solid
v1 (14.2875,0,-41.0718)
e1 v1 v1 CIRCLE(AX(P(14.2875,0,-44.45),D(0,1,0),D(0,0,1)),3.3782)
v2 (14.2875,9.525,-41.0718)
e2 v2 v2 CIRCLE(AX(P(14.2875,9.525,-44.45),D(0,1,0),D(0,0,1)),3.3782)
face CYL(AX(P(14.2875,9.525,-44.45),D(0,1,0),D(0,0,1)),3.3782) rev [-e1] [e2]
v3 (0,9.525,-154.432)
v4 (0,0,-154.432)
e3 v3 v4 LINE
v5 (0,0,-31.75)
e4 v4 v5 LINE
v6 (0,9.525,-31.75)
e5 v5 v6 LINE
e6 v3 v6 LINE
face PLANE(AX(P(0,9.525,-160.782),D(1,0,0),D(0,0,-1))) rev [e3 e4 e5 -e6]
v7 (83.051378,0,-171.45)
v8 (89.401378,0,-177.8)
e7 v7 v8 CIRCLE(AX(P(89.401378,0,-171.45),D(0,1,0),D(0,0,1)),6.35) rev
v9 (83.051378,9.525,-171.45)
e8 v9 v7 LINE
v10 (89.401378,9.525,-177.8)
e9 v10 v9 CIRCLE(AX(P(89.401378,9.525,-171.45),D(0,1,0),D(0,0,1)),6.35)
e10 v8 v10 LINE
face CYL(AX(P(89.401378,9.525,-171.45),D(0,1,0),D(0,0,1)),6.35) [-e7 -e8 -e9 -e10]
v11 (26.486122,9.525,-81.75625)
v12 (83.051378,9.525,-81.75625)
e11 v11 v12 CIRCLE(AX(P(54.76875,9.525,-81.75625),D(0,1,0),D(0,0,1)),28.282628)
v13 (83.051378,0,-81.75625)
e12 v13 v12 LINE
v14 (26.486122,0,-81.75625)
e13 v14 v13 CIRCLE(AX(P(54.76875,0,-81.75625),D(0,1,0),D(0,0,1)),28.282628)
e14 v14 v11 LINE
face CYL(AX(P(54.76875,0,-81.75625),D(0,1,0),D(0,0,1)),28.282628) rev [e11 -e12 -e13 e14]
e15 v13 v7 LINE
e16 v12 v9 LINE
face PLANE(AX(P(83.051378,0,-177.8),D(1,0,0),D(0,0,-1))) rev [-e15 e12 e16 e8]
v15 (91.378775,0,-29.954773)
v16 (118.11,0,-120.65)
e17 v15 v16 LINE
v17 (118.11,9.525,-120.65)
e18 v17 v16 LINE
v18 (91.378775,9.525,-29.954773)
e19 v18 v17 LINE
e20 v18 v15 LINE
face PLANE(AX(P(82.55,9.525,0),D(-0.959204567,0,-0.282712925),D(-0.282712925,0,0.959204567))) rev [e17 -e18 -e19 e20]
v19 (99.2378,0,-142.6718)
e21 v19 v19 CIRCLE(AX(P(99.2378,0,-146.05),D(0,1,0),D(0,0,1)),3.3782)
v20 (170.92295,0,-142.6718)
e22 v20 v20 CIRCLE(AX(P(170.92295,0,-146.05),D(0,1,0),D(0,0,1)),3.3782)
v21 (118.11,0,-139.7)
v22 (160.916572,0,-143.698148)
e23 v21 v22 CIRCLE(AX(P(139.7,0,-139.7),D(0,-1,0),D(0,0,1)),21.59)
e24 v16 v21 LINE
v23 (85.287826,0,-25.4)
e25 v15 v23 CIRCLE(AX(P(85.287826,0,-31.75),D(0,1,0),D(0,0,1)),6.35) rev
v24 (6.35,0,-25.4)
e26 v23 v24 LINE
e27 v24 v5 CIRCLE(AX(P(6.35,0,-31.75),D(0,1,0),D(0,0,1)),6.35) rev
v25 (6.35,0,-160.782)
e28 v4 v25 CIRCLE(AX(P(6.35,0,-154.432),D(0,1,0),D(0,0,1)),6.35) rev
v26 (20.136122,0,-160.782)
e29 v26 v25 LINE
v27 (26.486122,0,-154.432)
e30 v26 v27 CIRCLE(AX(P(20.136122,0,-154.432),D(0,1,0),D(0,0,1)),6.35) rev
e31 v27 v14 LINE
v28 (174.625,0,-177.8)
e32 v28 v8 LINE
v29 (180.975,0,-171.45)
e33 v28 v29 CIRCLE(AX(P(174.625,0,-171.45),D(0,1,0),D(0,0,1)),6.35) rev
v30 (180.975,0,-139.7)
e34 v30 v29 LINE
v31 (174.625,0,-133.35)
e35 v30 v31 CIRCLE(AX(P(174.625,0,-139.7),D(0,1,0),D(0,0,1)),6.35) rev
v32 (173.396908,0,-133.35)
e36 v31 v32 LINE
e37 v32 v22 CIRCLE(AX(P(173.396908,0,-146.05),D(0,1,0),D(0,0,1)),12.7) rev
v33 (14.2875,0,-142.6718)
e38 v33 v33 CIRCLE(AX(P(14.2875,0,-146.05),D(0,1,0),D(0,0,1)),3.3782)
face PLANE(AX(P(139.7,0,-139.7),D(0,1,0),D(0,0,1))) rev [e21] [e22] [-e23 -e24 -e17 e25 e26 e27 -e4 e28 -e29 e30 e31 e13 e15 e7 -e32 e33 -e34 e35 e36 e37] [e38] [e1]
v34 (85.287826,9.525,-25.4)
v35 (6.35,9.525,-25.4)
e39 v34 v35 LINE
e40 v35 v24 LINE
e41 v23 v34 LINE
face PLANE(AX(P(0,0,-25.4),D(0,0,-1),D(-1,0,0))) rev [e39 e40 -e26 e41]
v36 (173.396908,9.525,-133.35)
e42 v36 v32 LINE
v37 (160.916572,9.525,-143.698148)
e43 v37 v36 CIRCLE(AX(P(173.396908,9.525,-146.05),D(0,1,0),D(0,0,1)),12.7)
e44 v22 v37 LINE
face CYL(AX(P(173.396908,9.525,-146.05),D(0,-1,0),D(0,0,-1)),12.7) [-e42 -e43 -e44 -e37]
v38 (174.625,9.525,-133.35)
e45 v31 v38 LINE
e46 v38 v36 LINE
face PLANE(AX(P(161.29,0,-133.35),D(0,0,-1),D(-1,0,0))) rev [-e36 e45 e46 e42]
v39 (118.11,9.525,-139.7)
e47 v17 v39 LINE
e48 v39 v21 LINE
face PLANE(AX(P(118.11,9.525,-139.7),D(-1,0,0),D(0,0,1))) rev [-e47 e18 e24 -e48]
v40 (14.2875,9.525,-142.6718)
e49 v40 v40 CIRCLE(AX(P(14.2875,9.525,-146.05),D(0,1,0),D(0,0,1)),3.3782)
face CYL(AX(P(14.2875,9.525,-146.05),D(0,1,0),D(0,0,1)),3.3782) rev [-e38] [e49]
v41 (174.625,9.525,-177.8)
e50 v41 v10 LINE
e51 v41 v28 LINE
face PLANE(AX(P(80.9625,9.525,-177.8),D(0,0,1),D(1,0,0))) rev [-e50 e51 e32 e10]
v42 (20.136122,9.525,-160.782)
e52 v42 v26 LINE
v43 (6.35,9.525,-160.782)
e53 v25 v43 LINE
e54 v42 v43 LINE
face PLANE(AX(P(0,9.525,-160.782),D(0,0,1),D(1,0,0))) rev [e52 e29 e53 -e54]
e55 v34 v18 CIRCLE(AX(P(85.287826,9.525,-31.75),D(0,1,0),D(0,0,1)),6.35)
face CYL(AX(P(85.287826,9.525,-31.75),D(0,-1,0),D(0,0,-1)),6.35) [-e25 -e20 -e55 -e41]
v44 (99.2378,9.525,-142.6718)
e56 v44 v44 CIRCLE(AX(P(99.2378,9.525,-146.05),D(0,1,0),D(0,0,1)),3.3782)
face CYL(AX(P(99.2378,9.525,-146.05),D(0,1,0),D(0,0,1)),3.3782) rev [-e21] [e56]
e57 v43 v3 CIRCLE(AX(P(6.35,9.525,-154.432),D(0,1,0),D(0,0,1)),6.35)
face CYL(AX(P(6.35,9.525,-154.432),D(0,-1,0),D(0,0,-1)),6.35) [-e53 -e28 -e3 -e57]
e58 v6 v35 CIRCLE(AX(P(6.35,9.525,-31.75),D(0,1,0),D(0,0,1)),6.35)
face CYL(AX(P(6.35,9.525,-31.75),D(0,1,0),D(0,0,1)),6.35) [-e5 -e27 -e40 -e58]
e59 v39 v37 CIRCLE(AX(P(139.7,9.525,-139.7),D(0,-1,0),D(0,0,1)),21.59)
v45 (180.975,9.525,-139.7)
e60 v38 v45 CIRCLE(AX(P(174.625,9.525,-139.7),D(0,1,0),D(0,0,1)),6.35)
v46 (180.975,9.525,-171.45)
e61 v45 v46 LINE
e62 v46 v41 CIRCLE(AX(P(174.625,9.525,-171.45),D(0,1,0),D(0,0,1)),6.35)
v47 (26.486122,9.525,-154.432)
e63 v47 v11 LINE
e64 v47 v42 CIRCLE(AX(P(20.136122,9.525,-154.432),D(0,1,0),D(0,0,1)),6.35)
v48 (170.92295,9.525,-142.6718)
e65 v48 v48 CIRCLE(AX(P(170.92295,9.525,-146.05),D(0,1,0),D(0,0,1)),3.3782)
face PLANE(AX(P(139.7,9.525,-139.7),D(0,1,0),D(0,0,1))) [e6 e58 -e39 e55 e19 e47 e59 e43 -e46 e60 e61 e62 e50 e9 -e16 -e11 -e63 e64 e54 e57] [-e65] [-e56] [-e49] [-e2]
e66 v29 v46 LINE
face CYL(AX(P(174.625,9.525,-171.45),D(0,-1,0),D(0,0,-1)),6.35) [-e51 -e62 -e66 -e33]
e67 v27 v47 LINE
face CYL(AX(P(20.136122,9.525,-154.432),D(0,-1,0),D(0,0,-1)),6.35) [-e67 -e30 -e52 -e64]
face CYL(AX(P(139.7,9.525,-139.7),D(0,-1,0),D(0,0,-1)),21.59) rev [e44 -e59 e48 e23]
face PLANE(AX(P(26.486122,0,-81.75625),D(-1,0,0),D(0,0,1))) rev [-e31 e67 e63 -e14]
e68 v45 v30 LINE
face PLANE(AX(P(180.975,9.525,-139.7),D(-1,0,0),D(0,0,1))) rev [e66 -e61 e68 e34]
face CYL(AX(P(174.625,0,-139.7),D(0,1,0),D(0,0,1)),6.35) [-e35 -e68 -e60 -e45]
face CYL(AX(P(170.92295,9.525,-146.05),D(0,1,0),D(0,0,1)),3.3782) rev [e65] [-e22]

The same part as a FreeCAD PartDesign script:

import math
import FreeCAD as App
import Part
import Sketcher

V = App.Vector
Q = App.Units.Quantity


def edges_at(feature, points):
    """Names of the edges that pass closest to the given points."""
    edges = feature.Shape.Edges
    near = lambda p: min(range(len(edges)), key=lambda i: edges[i].distToShape(Part.Vertex(*p))[0])
    return sorted({f"Edge{near(p) + 1}" for p in points})

doc = App.newDocument("Part")
body = doc.addObject("PartDesign::Body", "Body")

sketch1 = body.newObject("Sketcher::SketchObject", "Sketch")
sketch1.AttachmentSupport = (doc.getObject("XZ_Plane"), [""])
sketch1.MapMode = "FlatFace"
sketch1.addGeometry(Part.LineSegment(V(29, -82, 0), V(29, -161, 0)), False)
sketch1.addGeometry(Part.LineSegment(V(29, -161, 0), V(0, -161, 0)), False)
sketch1.addGeometry(Part.LineSegment(V(0, -161, 0), V(0, 0, 0)), False)
sketch1.addGeometry(Part.LineSegment(V(0, 0, 0), V(83, 0, 0)), False)
sketch1.addGeometry(Part.LineSegment(V(83, 0, 0), V(118, -121, 0)), False)
sketch1.addGeometry(Part.LineSegment(V(118, -121, 0), V(118, -140, 0)), False)
sketch1.addGeometry(Part.ArcOfCircle(Part.Circle(V(140, -140, 0), V(0, 0, 1), 22), math.radians(180), math.radians(360)), False)
sketch1.addGeometry(Part.LineSegment(V(161, -140, 0), V(161, -121, 0)), False)
sketch1.addGeometry(Part.LineSegment(V(161, -121, 0), V(181, -121, 0)), False)
sketch1.addGeometry(Part.LineSegment(V(181, -121, 0), V(181, -178, 0)), False)
sketch1.addGeometry(Part.LineSegment(V(181, -178, 0), V(81, -178, 0)), False)
sketch1.addGeometry(Part.LineSegment(V(81, -178, 0), V(81, -82, 0)), False)
sketch1.addGeometry(Part.ArcOfCircle(Part.Circle(V(55, -82, 0), V(0, 0, 1), 26), math.radians(0), math.radians(180)), False)
sketch1.addConstraint(Sketcher.Constraint("Coincident", 0, 2, 1, 1))
sketch1.addConstraint(Sketcher.Constraint("Coincident", 1, 2, 2, 1))
sketch1.addConstraint(Sketcher.Constraint("Coincident", 2, 2, 3, 1))
sketch1.addConstraint(Sketcher.Constraint("Coincident", 3, 2, 4, 1))
sketch1.addConstraint(Sketcher.Constraint("Coincident", 4, 2, 5, 1))
sketch1.addConstraint(Sketcher.Constraint("Tangent", 5, 2, 6, 1))
sketch1.addConstraint(Sketcher.Constraint("Tangent", 6, 2, 7, 1))
sketch1.addConstraint(Sketcher.Constraint("Coincident", 7, 2, 8, 1))
sketch1.addConstraint(Sketcher.Constraint("Coincident", 8, 2, 9, 1))
sketch1.addConstraint(Sketcher.Constraint("Coincident", 9, 2, 10, 1))
sketch1.addConstraint(Sketcher.Constraint("Coincident", 10, 2, 11, 1))
sketch1.addConstraint(Sketcher.Constraint("Tangent", 11, 2, 12, 1))
sketch1.addConstraint(Sketcher.Constraint("Tangent", 12, 2, 0, 1))
sketch1.addConstraint(Sketcher.Constraint("Vertical", 0))
sketch1.addConstraint(Sketcher.Constraint("Horizontal", 1))
sketch1.addConstraint(Sketcher.Constraint("Vertical", 2))
sketch1.addConstraint(Sketcher.Constraint("Horizontal", 3))
sketch1.addConstraint(Sketcher.Constraint("Vertical", 5))
sketch1.addConstraint(Sketcher.Constraint("Vertical", 7))
sketch1.addConstraint(Sketcher.Constraint("Horizontal", 8))
sketch1.addConstraint(Sketcher.Constraint("Vertical", 9))
sketch1.addConstraint(Sketcher.Constraint("Horizontal", 10))
sketch1.addConstraint(Sketcher.Constraint("Vertical", 11))
sketch1.addConstraint(Sketcher.Constraint("Coincident", 2, 2, -1, 1))
sketch1.addConstraint(Sketcher.Constraint("Horizontal", 4, 2, 7, 2))
sketch1.addConstraint(Sketcher.Constraint("Radius", 6, Q("0.85 in")))
sketch1.addConstraint(Sketcher.Constraint("DistanceY", 9, 2, -1, 1, Q("7 in")))
sketch1.addConstraint(Sketcher.Constraint("Radius", 12, Q("1.03125 in")))
sketch1.addConstraint(Sketcher.Constraint("DistanceX", 3, 1, 3, 2, Q("3.25 in")))
sketch1.addConstraint(Sketcher.Constraint("DistanceY", 2, 1, 2, 2, Q("6.33 in")))
sketch1.addConstraint(Sketcher.Constraint("DistanceY", 5, 2, 5, 1, Q("0.75 in")))
sketch1.addConstraint(Sketcher.Constraint("DistanceY", 9, 2, 9, 1, Q("2.25 in")))
sketch1.addConstraint(Sketcher.Constraint("DistanceX", -1, 1, 6, 3, Q("5.5 in")))
sketch1.addConstraint(Sketcher.Constraint("DistanceX", 1, 2, 1, 1, Q("1.125 in")))
sketch1.addConstraint(Sketcher.Constraint("DistanceX", 8, 1, 8, 2, Q("0.775 in")))
sketch1.addConstraint(Sketcher.Constraint("DistanceY", 11, 1, 11, 2, Q("3.78125 in")))
pad1 = body.newObject("PartDesign::Pad", "Pad")
pad1.Profile = sketch1
pad1.Length = Q("0.375 in")
pad1.Reversed = True

sketch2 = body.newObject("Sketcher::SketchObject", "Sketch001")
sketch2.AttachmentSupport = (doc.getObject("XZ_Plane"), [""])
sketch2.MapMode = "FlatFace"
sketch2.AttachmentOffset = App.Placement(V(0, 0, -0.375 * 25.4), App.Rotation())
sketch2.addGeometry(Part.LineSegment(V(0, -25, 0), V(0, 0, 0)), False)
sketch2.addGeometry(Part.LineSegment(V(0, 0, 0), V(94, 0, 0)), False)
sketch2.addGeometry(Part.LineSegment(V(94, 0, 0), V(94, -25, 0)), False)
sketch2.addGeometry(Part.LineSegment(V(94, -25, 0), V(0, -25, 0)), False)
sketch2.addConstraint(Sketcher.Constraint("Coincident", 0, 2, 1, 1))
sketch2.addConstraint(Sketcher.Constraint("Coincident", 1, 2, 2, 1))
sketch2.addConstraint(Sketcher.Constraint("Coincident", 2, 2, 3, 1))
sketch2.addConstraint(Sketcher.Constraint("Coincident", 3, 2, 0, 1))
sketch2.addConstraint(Sketcher.Constraint("Vertical", 0))
sketch2.addConstraint(Sketcher.Constraint("Horizontal", 1))
sketch2.addConstraint(Sketcher.Constraint("Vertical", 2))
sketch2.addConstraint(Sketcher.Constraint("Horizontal", 3))
sketch2.addConstraint(Sketcher.Constraint("Coincident", 0, 2, -1, 1))
sketch2.addConstraint(Sketcher.Constraint("DistanceY", 0, 1, 0, 2, Q("1 in")))
sketch2.addConstraint(Sketcher.Constraint("DistanceX", 1, 1, 1, 2, 94.331669))
pocket1 = body.newObject("PartDesign::Pocket", "Pocket")
pocket1.Profile = sketch2
pocket1.Type = "ThroughAll"
pocket1.Reversed = True
doc.recompute()

fillet = body.newObject("PartDesign::Fillet", "Fillet")
fillet.Base = (pocket1, edges_at(pocket1, [(0, 4.763, -25.4)]))
fillet.Radius = Q("0.25 in")
doc.recompute()

fillet2 = body.newObject("PartDesign::Fillet", "Fillet001")
fillet2.Base = (fillet, edges_at(fillet, [
    (0, 4.763, -160.782),
    (180.975, 4.763, -177.8),
    (180.975, 4.763, -120.65),
    (90.036, 4.763, -25.4),
]))
fillet2.Radius = Q("0.25 in")

sketch3 = body.newObject("Sketcher::SketchObject", "Sketch002")
sketch3.AttachmentSupport = (doc.getObject("XZ_Plane"), [""])
sketch3.MapMode = "FlatFace"
sketch3.AttachmentOffset = App.Placement(V(0, 0, -0.375 * 25.4), App.Rotation())
sketch3.addGeometry(Part.Circle(V(14.3, -146.1, 0), V(0, 0, 1), 3.4), False)
sketch3.addGeometry(Part.Circle(V(14.3, -44.5, 0), V(0, 0, 1), 3.4), False)
sketch3.addGeometry(Part.Circle(V(99.2, -146.1, 0), V(0, 0, 1), 3.4), False)
sketch3.addGeometry(Part.Circle(V(170.9, -146.1, 0), V(0, 0, 1), 3.4), False)
sketch3.addConstraint(Sketcher.Constraint("Equal", 0, 1))
sketch3.addConstraint(Sketcher.Constraint("Equal", 1, 2))
sketch3.addConstraint(Sketcher.Constraint("Equal", 2, 3))
sketch3.addConstraint(Sketcher.Constraint("Horizontal", 0, 3, 2, 3))
sketch3.addConstraint(Sketcher.Constraint("Horizontal", 2, 3, 3, 3))
sketch3.addConstraint(Sketcher.Constraint("Vertical", 0, 3, 1, 3))
sketch3.addConstraint(Sketcher.Constraint("Diameter", 0, Q("0.266 in")))
sketch3.addConstraint(Sketcher.Constraint("DistanceY", 0, 3, 1, 3, Q("4 in")))
sketch3.addConstraint(Sketcher.Constraint("DistanceY", 0, 3, -1, 1, Q("5.75 in")))
sketch3.addConstraint(Sketcher.Constraint("DistanceX", -1, 1, 0, 3, Q("0.5625 in")))
sketch3.addConstraint(Sketcher.Constraint("DistanceX", -1, 1, 2, 3, Q("3.907 in")))
sketch3.addConstraint(Sketcher.Constraint("DistanceX", -1, 1, 3, 3, 170.92295))
doc.recompute()
hole = body.newObject("PartDesign::Hole", "Hole")
hole.Profile = sketch3
hole.ThreadType = "None"
hole.Diameter = Q("0.266 in")
hole.DepthType = "ThroughAll"
hole.Reversed = True

sketch4 = body.newObject("Sketcher::SketchObject", "Sketch003")
sketch4.AttachmentSupport = (doc.getObject("XZ_Plane"), [""])
sketch4.MapMode = "FlatFace"
sketch4.AttachmentOffset = App.Placement(V(0, 0, -0.375 * 25.4), App.Rotation())
sketch4.addGeometry(Part.LineSegment(V(161, -133, 0), V(161, -121, 0)), False)
sketch4.addGeometry(Part.LineSegment(V(161, -121, 0), V(181, -121, 0)), False)
sketch4.addGeometry(Part.LineSegment(V(181, -121, 0), V(181, -133, 0)), False)
sketch4.addGeometry(Part.LineSegment(V(181, -133, 0), V(161, -133, 0)), False)
sketch4.addConstraint(Sketcher.Constraint("Coincident", 0, 2, 1, 1))
sketch4.addConstraint(Sketcher.Constraint("Coincident", 1, 2, 2, 1))
sketch4.addConstraint(Sketcher.Constraint("Coincident", 2, 2, 3, 1))
sketch4.addConstraint(Sketcher.Constraint("Coincident", 3, 2, 0, 1))
sketch4.addConstraint(Sketcher.Constraint("Vertical", 0))
sketch4.addConstraint(Sketcher.Constraint("Horizontal", 1))
sketch4.addConstraint(Sketcher.Constraint("Vertical", 2))
sketch4.addConstraint(Sketcher.Constraint("Horizontal", 3))
sketch4.addConstraint(Sketcher.Constraint("DistanceY", 0, 1, 0, 2, Q("0.5 in")))
sketch4.addConstraint(Sketcher.Constraint("DistanceX", 1, 1, 1, 2, Q("0.775 in")))
sketch4.addConstraint(Sketcher.Constraint("DistanceX", -1, 1, 0, 2, Q("6.35 in")))
sketch4.addConstraint(Sketcher.Constraint("DistanceY", 0, 2, -1, 1, Q("4.75 in")))
pocket2 = body.newObject("PartDesign::Pocket", "Pocket001")
pocket2.Profile = sketch4
pocket2.Type = "ThroughAll"
pocket2.Reversed = True
doc.recompute()

fillet3 = body.newObject("PartDesign::Fillet", "Fillet002")
fillet3.Base = (pocket2, edges_at(pocket2, [(180.975, 4.763, -133.35)]))
fillet3.Radius = Q("0.25 in")

sketch5 = body.newObject("Sketcher::SketchObject", "Sketch004")
sketch5.AttachmentSupport = (doc.getObject("XZ_Plane"), [""])
sketch5.MapMode = "FlatFace"
sketch5.AttachmentOffset = App.Placement(V(0, 0, -0.375 * 25.4), App.Rotation())
sketch5.addGeometry(Part.LineSegment(V(26, -178, 0), V(26, -82, 0)), False)
sketch5.addGeometry(Part.ArcOfCircle(Part.Circle(V(55, -82, 0), V(0, 0, 1), 28), math.radians(0), math.radians(180)), False)
sketch5.addGeometry(Part.LineSegment(V(83, -82, 0), V(83, -178, 0)), False)
sketch5.addGeometry(Part.LineSegment(V(83, -178, 0), V(26, -178, 0)), False)
sketch5.addConstraint(Sketcher.Constraint("Tangent", 0, 2, 1, 2))
sketch5.addConstraint(Sketcher.Constraint("Tangent", 1, 1, 2, 1))
sketch5.addConstraint(Sketcher.Constraint("Coincident", 2, 2, 3, 1))
sketch5.addConstraint(Sketcher.Constraint("Coincident", 3, 2, 0, 1))
sketch5.addConstraint(Sketcher.Constraint("Vertical", 0))
sketch5.addConstraint(Sketcher.Constraint("Vertical", 2))
sketch5.addConstraint(Sketcher.Constraint("Horizontal", 3))
sketch5.addConstraint(Sketcher.Constraint("DistanceY", 2, 2, -1, 1, Q("7 in")))
sketch5.addConstraint(Sketcher.Constraint("DistanceY", 0, 1, 0, 2, Q("3.78125 in")))
sketch5.addConstraint(Sketcher.Constraint("DistanceX", -1, 1, 1, 3, Q("2.15625 in")))
sketch5.addConstraint(Sketcher.Constraint("Radius", 1, 28.282628))
pocket3 = body.newObject("PartDesign::Pocket", "Pocket002")
pocket3.Profile = sketch5
pocket3.Type = "ThroughAll"
pocket3.Reversed = True
doc.recompute()

fillet4 = body.newObject("PartDesign::Fillet", "Fillet003")
fillet4.Base = (pocket3, edges_at(pocket3, [(161.29, 4.763, -133.35)]))
fillet4.Radius = Q("0.5 in")
doc.recompute()

fillet5 = body.newObject("PartDesign::Fillet", "Fillet004")
fillet5.Base = (fillet4, edges_at(fillet4, [(26.486, 4.763, -160.782), (83.051, 4.763, -177.8)]))
fillet5.Radius = Q("0.25 in")

doc.recompute()
